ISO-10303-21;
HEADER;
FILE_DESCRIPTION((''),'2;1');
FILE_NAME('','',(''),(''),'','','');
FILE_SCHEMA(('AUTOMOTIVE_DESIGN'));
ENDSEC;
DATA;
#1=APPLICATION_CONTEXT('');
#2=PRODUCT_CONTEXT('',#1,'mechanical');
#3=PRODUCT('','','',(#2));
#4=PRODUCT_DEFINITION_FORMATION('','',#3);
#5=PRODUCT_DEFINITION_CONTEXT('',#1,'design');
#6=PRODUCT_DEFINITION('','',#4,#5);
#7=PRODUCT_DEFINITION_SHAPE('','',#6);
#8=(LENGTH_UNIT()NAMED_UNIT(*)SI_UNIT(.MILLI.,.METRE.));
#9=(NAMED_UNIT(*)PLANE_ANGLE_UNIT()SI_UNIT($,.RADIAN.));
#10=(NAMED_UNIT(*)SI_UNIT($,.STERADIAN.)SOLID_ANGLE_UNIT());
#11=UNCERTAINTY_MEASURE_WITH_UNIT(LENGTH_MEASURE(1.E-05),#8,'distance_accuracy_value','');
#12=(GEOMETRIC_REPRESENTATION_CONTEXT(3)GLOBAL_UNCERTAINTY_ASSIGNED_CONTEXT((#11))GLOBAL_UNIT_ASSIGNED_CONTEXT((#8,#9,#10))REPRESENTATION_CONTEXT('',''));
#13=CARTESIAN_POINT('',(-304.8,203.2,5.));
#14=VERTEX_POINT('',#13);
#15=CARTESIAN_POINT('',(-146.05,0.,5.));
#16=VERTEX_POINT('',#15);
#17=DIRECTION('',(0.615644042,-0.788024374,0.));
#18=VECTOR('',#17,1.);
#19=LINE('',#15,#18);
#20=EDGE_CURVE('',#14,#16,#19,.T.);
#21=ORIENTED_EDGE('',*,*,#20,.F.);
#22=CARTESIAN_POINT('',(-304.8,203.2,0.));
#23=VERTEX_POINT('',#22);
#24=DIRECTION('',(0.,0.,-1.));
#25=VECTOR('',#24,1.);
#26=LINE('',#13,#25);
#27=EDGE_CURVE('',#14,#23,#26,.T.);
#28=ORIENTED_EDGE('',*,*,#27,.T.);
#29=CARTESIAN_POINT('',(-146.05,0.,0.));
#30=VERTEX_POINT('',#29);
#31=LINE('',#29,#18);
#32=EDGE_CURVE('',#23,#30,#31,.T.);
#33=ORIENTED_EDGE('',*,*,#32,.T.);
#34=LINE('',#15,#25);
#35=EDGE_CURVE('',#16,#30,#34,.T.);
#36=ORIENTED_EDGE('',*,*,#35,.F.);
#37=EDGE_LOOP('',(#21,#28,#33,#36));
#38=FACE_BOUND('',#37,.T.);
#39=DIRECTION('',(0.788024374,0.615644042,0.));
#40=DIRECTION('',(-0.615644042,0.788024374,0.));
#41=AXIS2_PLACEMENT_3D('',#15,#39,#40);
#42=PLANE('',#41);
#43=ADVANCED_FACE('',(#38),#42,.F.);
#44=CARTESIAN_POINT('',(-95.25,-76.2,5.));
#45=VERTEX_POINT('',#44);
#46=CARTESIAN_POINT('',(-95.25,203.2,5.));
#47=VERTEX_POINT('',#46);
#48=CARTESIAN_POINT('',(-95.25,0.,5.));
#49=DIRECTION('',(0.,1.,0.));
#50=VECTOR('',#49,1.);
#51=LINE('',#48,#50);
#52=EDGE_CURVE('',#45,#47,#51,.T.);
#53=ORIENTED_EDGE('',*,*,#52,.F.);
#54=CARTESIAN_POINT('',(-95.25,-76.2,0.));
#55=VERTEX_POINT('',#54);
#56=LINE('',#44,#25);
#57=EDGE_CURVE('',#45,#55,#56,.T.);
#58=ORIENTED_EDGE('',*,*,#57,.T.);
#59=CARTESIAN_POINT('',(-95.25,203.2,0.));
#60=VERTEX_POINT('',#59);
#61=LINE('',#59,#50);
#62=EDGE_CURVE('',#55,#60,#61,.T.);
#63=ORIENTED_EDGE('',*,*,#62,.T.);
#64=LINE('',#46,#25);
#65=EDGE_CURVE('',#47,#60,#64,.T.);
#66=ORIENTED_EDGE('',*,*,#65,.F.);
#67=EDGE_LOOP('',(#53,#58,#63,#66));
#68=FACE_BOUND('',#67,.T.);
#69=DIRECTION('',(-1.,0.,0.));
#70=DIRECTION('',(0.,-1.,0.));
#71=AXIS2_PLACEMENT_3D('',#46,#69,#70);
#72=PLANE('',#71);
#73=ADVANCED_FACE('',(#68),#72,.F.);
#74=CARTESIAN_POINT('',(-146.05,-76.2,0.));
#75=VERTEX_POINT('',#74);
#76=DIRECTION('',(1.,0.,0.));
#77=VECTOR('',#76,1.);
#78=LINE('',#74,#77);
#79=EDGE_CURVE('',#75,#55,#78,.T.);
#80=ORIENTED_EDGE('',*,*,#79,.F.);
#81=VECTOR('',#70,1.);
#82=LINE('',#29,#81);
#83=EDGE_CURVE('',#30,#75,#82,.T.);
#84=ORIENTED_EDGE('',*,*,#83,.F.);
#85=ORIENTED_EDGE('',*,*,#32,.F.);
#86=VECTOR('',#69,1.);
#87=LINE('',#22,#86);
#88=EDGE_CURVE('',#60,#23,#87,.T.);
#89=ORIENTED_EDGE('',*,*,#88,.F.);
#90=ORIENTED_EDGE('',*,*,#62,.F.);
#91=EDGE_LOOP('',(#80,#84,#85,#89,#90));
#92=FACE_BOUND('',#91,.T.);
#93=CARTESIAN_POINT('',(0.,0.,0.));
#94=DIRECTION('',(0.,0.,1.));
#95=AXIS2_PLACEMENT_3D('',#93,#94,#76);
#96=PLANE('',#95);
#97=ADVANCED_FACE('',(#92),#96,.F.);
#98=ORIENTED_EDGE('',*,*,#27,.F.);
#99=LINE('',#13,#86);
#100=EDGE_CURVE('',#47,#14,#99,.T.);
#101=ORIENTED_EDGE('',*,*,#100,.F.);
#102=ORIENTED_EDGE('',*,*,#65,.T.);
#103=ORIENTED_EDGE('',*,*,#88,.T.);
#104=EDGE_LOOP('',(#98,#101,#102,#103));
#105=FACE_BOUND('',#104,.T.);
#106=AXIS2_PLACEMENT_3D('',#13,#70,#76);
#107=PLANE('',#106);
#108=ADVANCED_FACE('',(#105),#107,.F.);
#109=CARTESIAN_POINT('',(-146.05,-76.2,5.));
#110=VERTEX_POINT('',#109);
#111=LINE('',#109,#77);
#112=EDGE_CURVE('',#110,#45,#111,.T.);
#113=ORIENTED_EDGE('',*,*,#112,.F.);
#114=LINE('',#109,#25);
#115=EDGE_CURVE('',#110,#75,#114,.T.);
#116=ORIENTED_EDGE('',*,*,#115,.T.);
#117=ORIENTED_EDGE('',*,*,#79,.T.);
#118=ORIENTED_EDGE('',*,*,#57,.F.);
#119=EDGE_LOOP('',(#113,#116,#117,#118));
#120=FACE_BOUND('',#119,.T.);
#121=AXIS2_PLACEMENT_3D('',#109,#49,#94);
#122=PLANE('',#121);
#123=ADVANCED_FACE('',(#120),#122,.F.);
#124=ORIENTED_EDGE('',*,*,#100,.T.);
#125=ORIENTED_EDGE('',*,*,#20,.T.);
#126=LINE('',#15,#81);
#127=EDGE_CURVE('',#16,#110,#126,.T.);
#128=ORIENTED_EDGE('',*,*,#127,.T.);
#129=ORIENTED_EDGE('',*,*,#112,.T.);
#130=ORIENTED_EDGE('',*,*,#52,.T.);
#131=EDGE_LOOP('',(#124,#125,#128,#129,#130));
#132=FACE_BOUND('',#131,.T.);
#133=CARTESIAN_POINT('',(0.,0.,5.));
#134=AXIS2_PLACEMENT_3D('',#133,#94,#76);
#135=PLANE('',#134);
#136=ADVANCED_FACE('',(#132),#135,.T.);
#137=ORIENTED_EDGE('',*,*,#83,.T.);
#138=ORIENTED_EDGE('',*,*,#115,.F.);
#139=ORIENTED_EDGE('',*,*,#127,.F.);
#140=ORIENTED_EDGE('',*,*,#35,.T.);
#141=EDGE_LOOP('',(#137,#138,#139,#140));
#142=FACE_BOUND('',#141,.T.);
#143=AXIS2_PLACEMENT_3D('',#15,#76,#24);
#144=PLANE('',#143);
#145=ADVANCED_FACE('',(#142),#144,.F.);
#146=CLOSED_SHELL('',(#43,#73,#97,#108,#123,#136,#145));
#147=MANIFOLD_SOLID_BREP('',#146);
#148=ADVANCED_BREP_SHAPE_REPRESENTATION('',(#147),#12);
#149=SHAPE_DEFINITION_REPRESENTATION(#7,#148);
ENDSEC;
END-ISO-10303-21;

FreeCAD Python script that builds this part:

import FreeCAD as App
import Part
import Sketcher
Q = App.Units.Quantity


def add_polygon(sketch, points):
    """Adds a closed chain of lines whose ends are joined by coincident constraints."""
    first, n = sketch.GeometryCount, len(points)
    for a, b in zip(points, points[1:] + points[:1]):
        sketch.addGeometry(Part.LineSegment(App.Vector(*a, 0), App.Vector(*b, 0)), False)
    for i in range(n):
        sketch.addConstraint(Sketcher.Constraint("Coincident", first + i, 2, first + (i + 1) % n, 1))

doc = App.newDocument("Part")
params = doc.addObject("Spreadsheet::Sheet", "Params")
for row, (alias, value) in enumerate([
    ("sketch1_width", "2 in"),
    ("sketch1_height", "11 in"),
    ("sketch1_height2", "3 in"),
    ("sketch1_width2", "8.25 in"),
    ("pad1_length", "5 mm"),
], start=1):
    params.set(f"A{row}", alias)
    params.set(f"B{row}", "=" + value)
    params.setAlias(f"B{row}", alias)

body = doc.addObject("PartDesign::Body", "Body")

sketch1 = body.newObject("Sketcher::SketchObject", "Sketch")
sketch1.AttachmentSupport = (doc.getObject("XY_Plane"), [""])
sketch1.MapMode = "FlatFace"
add_polygon(sketch1, [(-95, -76), (-95, 203), (-305, 203), (-146, 0), (-146, -76)])
sketch1.addConstraint(Sketcher.Constraint("Vertical", 0))
sketch1.addConstraint(Sketcher.Constraint("Horizontal", 1))
sketch1.addConstraint(Sketcher.Constraint("Vertical", 3))
sketch1.addConstraint(Sketcher.Constraint("Horizontal", 4))
sketch1.addConstraint(Sketcher.Constraint("PointOnObject", 2, 2, -1))
sketch1.addConstraint(Sketcher.Constraint("DistanceX", 4, 1, 4, 2, Q("2 in")))
sketch1.addConstraint(Sketcher.Constraint("DistanceY", 0, 1, 0, 2, Q("11 in")))
sketch1.addConstraint(Sketcher.Constraint("DistanceY", 3, 2, 3, 1, Q("3 in")))
sketch1.addConstraint(Sketcher.Constraint("DistanceX", 1, 2, -1, 1, Q("12 in")))
sketch1.addConstraint(Sketcher.Constraint("DistanceX", 1, 2, 1, 1, Q("8.25 in")))
sketch1.setExpression("Constraints[10]", "Params.sketch1_width")
sketch1.setExpression("Constraints[11]", "Params.sketch1_height")
sketch1.setExpression("Constraints[12]", "Params.sketch1_height2")
sketch1.setExpression("Constraints[14]", "Params.sketch1_width2")
pad1 = body.newObject("PartDesign::Pad", "Pad")
pad1.Profile = sketch1
pad1.setExpression("Length", "Params.pad1_length")

doc.recompute()
